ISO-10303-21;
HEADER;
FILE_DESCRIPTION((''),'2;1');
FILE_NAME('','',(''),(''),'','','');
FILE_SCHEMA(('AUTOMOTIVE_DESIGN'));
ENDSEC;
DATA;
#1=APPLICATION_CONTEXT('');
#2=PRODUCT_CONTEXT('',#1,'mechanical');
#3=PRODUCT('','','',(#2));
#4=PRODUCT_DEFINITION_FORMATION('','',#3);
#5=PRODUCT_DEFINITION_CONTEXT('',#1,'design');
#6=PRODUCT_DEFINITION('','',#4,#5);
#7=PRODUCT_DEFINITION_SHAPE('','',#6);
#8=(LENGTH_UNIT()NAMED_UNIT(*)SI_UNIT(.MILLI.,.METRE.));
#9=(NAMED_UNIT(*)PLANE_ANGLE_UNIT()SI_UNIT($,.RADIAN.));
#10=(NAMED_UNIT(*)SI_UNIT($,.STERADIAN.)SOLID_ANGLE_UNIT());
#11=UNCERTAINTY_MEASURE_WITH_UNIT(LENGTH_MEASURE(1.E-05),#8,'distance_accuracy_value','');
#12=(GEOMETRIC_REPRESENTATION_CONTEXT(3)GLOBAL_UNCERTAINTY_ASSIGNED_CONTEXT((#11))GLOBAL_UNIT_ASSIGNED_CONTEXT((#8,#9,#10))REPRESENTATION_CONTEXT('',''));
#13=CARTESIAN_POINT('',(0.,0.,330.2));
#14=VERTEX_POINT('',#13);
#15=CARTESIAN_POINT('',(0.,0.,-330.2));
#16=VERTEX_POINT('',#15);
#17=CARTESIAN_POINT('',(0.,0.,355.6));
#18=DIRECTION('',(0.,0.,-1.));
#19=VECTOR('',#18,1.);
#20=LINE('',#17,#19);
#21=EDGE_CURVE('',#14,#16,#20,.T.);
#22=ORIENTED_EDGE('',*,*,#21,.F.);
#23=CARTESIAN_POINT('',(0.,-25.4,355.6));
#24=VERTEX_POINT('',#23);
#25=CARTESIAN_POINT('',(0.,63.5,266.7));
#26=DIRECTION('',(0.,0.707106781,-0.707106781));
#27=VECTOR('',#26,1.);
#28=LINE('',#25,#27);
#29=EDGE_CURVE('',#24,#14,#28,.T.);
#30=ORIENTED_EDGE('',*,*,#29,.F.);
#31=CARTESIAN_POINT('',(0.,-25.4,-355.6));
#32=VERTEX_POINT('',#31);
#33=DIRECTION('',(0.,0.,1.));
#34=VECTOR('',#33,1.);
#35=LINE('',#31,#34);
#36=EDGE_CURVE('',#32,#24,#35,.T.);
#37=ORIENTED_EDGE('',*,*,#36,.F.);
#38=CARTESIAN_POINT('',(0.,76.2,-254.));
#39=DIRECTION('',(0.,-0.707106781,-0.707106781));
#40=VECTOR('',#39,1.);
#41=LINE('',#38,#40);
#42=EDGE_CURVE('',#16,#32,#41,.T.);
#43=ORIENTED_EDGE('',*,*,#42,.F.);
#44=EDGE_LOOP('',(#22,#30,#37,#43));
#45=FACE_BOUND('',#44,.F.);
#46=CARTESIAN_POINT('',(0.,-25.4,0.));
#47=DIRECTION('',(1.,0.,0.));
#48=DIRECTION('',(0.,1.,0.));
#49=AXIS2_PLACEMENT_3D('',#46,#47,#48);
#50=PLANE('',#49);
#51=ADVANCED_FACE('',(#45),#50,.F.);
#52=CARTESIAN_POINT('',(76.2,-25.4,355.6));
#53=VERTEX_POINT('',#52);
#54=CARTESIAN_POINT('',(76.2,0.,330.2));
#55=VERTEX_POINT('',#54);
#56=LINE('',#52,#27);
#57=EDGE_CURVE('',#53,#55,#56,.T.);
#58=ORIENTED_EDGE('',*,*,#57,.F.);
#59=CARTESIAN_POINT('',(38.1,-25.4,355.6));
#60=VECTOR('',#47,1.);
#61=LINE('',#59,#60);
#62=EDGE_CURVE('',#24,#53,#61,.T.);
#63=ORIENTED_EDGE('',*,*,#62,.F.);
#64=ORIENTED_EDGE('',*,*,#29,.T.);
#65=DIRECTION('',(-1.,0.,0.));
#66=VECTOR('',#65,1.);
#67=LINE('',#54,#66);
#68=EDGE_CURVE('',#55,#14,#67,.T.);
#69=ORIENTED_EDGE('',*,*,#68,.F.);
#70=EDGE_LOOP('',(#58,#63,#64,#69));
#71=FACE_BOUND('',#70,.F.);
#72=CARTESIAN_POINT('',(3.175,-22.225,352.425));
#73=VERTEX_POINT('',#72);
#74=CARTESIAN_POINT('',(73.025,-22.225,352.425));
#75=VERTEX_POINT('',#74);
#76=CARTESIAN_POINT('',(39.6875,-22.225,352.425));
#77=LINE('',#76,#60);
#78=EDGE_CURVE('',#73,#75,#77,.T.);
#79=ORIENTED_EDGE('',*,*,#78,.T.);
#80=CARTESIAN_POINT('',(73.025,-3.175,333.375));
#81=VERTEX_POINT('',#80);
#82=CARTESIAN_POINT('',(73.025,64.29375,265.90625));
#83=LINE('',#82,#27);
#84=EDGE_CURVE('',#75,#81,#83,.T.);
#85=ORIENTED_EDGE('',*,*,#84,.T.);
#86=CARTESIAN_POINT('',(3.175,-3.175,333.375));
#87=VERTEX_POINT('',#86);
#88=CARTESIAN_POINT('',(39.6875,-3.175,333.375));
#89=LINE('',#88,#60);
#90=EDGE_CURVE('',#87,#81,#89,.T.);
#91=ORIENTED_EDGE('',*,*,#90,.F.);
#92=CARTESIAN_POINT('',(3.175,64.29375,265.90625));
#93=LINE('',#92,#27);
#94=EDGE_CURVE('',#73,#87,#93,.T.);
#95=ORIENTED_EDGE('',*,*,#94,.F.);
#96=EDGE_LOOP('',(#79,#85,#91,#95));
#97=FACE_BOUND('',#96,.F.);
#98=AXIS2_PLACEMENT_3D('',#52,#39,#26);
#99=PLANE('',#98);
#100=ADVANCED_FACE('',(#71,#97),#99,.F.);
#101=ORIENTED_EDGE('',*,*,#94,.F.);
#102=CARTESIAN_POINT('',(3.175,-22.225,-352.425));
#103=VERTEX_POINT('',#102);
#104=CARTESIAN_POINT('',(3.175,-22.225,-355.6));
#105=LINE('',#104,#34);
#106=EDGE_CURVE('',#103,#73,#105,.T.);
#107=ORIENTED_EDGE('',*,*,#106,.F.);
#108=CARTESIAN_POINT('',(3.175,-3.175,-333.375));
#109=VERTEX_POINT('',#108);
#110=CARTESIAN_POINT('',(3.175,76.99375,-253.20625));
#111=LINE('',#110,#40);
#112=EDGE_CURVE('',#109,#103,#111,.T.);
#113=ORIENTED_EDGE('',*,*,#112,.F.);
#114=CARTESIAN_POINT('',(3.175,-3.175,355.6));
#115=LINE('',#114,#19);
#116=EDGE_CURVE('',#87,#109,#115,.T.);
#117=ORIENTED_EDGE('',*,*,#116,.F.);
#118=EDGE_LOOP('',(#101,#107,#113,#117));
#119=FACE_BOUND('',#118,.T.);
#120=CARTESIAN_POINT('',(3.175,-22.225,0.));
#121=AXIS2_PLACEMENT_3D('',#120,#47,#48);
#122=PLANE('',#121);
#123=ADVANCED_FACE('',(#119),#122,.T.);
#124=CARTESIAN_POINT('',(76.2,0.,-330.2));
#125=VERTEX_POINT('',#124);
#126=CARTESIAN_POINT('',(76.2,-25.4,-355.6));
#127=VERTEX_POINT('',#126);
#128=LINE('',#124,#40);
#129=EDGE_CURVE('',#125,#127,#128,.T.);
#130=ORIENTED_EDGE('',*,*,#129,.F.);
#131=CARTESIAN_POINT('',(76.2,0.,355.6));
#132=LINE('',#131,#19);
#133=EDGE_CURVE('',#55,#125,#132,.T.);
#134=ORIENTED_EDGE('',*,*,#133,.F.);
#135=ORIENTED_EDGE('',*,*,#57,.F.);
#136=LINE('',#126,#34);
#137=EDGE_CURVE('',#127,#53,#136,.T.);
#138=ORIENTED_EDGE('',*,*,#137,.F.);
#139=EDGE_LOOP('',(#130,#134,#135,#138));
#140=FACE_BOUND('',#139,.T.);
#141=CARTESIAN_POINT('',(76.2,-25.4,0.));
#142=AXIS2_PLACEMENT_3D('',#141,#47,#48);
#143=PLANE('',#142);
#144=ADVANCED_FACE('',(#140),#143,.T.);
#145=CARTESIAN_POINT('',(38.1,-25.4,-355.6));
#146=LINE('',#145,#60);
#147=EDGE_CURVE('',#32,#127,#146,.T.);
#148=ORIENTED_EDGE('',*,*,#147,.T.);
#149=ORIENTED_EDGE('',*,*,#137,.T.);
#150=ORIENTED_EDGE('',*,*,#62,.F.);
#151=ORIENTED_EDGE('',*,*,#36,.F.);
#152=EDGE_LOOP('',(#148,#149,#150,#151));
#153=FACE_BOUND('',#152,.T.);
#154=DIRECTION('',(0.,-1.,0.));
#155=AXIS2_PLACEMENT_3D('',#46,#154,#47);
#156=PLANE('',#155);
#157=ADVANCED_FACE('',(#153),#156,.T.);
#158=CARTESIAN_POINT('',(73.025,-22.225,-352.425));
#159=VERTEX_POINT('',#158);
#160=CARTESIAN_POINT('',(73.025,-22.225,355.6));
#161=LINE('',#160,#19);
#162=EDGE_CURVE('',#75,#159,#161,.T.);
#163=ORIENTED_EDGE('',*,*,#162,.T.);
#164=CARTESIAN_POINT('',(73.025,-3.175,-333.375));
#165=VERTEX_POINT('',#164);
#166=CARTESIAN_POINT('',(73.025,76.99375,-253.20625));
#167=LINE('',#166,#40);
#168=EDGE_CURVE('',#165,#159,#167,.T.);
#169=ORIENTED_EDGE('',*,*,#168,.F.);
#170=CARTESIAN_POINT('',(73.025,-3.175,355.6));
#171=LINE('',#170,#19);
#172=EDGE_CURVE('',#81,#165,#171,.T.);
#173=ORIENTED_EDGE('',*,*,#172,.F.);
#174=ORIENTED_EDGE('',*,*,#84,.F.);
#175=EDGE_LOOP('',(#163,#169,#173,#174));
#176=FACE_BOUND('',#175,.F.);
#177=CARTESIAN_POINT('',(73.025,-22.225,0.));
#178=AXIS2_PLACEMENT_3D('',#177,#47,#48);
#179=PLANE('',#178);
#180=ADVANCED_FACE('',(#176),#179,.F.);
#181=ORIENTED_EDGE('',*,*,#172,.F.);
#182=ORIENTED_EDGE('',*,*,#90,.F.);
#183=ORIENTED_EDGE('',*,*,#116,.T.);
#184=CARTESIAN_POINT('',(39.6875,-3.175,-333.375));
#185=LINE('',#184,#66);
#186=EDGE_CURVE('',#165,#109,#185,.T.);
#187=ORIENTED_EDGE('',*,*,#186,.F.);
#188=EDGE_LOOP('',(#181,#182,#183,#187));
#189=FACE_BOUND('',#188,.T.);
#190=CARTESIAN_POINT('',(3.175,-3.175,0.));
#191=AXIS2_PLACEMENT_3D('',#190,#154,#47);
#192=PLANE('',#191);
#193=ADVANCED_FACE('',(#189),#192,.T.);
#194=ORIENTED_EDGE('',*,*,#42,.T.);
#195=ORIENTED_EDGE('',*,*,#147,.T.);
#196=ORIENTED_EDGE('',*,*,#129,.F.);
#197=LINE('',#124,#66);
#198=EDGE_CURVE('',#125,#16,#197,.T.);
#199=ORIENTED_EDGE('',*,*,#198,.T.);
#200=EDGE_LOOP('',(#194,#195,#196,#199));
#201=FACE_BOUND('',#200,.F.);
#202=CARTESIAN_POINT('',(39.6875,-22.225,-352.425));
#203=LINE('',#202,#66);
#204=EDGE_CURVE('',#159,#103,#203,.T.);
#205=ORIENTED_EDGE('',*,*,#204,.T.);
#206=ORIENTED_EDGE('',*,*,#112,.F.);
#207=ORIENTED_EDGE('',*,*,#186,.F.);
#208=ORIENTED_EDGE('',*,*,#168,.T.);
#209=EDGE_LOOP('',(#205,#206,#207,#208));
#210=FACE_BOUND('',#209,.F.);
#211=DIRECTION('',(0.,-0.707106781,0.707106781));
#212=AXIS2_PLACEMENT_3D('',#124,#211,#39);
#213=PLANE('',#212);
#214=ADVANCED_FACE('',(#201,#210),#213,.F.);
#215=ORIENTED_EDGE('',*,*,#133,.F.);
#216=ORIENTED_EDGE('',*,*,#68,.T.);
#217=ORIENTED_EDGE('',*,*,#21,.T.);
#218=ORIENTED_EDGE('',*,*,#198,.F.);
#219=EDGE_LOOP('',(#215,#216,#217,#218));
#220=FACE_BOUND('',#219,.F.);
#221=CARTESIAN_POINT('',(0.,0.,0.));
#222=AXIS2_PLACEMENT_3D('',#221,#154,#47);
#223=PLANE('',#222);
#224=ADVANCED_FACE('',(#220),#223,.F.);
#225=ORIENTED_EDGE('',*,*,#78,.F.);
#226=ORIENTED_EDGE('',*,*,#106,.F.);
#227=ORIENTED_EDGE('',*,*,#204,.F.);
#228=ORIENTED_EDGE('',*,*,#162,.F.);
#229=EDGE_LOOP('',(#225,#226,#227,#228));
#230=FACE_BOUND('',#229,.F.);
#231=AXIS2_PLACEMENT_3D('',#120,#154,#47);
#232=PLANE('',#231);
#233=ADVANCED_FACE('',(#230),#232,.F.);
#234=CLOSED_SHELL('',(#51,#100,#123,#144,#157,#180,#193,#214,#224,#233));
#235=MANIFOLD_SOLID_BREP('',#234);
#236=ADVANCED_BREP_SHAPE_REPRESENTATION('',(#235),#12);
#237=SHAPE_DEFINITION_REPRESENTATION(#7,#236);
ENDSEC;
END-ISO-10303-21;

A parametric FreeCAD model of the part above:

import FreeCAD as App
import Part
import Sketcher

V = App.Vector
Q = App.Units.Quantity

doc = App.newDocument("Part")
body = doc.addObject("PartDesign::Body", "Body")

sketch1 = body.newObject("Sketcher::SketchObject", "Sketch")
sketch1.AttachmentSupport = (doc.getObject("XY_Plane"), [""])
sketch1.MapMode = "FlatFace"
sketch1.addGeometry([
    Part.LineSegment(V(0, 0, 0), V(0, -25.4, 0)),
    Part.LineSegment(V(0, -25.4, 0), V(76.2, -25.4, 0)),
    Part.LineSegment(V(76.2, -25.4, 0), V(76.2, 0, 0)),
    Part.LineSegment(V(76.2, 0, 0), V(0, 0, 0)),
    Part.LineSegment(V(73.025, -22.225, 0), V(3.175, -22.225, 0)),
    Part.LineSegment(V(3.175, -22.225, 0), V(3.175, -3.175, 0)),
    Part.LineSegment(V(3.175, -3.175, 0), V(73.025, -3.175, 0)),
    Part.LineSegment(V(73.025, -3.175, 0), V(73.025, -22.225, 0)),
], False)
sketch1.addConstraint([
    Sketcher.Constraint("Coincident", 0, 2, 1, 1),
    Sketcher.Constraint("Coincident", 1, 2, 2, 1),
    Sketcher.Constraint("Coincident", 2, 2, 3, 1),
    Sketcher.Constraint("Coincident", 3, 2, 0, 1),
    Sketcher.Constraint("Coincident", 4, 2, 5, 1),
    Sketcher.Constraint("Coincident", 5, 2, 6, 1),
    Sketcher.Constraint("Coincident", 6, 2, 7, 1),
    Sketcher.Constraint("Coincident", 7, 2, 4, 1),
    Sketcher.Constraint("Vertical", 0),
    Sketcher.Constraint("Horizontal", 1),
    Sketcher.Constraint("Vertical", 2),
    Sketcher.Constraint("Horizontal", 3),
    Sketcher.Constraint("Horizontal", 4),
    Sketcher.Constraint("Vertical", 5),
    Sketcher.Constraint("Horizontal", 6),
    Sketcher.Constraint("Vertical", 7),
    Sketcher.Constraint("Coincident", 3, 2, -1, 1),
    Sketcher.Constraint("DistanceX", 1, 1, 1, 2, Q("3 in")),
    Sketcher.Constraint("DistanceY", 0, 2, 0, 1, Q("1 in")),
    Sketcher.Constraint("DistanceX", 4, 2, 4, 1, Q("2.75 in")),
    Sketcher.Constraint("DistanceY", 5, 1, 5, 2, Q("0.75 in")),
    Sketcher.Constraint("DistanceX", -1, 1, 4, 2, Q("0.125 in")),
    Sketcher.Constraint("DistanceY", 4, 2, -1, 1, Q("0.875 in")),
])
pad1 = body.newObject("PartDesign::Pad", "Pad")
pad1.Profile = sketch1
pad1.Type = "TwoLengths"
pad1.Length = Q("14 in")
pad1.Length2 = Q("14 in")

sketch2 = body.newObject("Sketcher::SketchObject", "Sketch001")
sketch2.AttachmentSupport = (doc.getObject("YZ_Plane"), [""])
sketch2.MapMode = "FlatFace"
sketch2.AttachmentOffset = App.Placement(V(0, 0, 3 * 25.4), App.Rotation())
sketch2.addGeometry([
    Part.LineSegment(V(0, 355.6, 0), V(-25.4, 355.6, 0)),
    Part.LineSegment(V(-25.4, 355.6, 0), V(0, 330.2, 0)),
    Part.LineSegment(V(0, 330.2, 0), V(0, 355.6, 0)),
    Part.LineSegment(V(0, -330.2, 0), V(-25.4, -355.6, 0)),
    Part.LineSegment(V(-25.4, -355.6, 0), V(0, -355.6, 0)),
    Part.LineSegment(V(0, -355.6, 0), V(0, -330.2, 0)),
], False)
sketch2.addConstraint([
    Sketcher.Constraint("Coincident", 0, 2, 1, 1),
    Sketcher.Constraint("Coincident", 1, 2, 2, 1),
    Sketcher.Constraint("Coincident", 2, 2, 0, 1),
    Sketcher.Constraint("Coincident", 3, 2, 4, 1),
    Sketcher.Constraint("Coincident", 4, 2, 5, 1),
    Sketcher.Constraint("Coincident", 5, 2, 3, 1),
    Sketcher.Constraint("Horizontal", 0),
    Sketcher.Constraint("Vertical", 2),
    Sketcher.Constraint("Horizontal", 4),
    Sketcher.Constraint("Vertical", 5),
    Sketcher.Constraint("Symmetric", 2, 2, 4, 2, -1, 1),
    Sketcher.Constraint("Symmetric", 1, 2, 5, 2, -1),
    Sketcher.Constraint("Perpendicular", 1, 3),
    Sketcher.Constraint("Vertical", 0, 2, 3, 2),
    Sketcher.Constraint("DistanceX", 0, 2, 0, 1, Q("1 in")),
    Sketcher.Constraint("DistanceY", -1, 1, 0, 2, Q("14 in")),
])
pocket1 = body.newObject("PartDesign::Pocket", "Pocket")
pocket1.Profile = sketch2
pocket1.Type = "ThroughAll"

doc.recompute()
